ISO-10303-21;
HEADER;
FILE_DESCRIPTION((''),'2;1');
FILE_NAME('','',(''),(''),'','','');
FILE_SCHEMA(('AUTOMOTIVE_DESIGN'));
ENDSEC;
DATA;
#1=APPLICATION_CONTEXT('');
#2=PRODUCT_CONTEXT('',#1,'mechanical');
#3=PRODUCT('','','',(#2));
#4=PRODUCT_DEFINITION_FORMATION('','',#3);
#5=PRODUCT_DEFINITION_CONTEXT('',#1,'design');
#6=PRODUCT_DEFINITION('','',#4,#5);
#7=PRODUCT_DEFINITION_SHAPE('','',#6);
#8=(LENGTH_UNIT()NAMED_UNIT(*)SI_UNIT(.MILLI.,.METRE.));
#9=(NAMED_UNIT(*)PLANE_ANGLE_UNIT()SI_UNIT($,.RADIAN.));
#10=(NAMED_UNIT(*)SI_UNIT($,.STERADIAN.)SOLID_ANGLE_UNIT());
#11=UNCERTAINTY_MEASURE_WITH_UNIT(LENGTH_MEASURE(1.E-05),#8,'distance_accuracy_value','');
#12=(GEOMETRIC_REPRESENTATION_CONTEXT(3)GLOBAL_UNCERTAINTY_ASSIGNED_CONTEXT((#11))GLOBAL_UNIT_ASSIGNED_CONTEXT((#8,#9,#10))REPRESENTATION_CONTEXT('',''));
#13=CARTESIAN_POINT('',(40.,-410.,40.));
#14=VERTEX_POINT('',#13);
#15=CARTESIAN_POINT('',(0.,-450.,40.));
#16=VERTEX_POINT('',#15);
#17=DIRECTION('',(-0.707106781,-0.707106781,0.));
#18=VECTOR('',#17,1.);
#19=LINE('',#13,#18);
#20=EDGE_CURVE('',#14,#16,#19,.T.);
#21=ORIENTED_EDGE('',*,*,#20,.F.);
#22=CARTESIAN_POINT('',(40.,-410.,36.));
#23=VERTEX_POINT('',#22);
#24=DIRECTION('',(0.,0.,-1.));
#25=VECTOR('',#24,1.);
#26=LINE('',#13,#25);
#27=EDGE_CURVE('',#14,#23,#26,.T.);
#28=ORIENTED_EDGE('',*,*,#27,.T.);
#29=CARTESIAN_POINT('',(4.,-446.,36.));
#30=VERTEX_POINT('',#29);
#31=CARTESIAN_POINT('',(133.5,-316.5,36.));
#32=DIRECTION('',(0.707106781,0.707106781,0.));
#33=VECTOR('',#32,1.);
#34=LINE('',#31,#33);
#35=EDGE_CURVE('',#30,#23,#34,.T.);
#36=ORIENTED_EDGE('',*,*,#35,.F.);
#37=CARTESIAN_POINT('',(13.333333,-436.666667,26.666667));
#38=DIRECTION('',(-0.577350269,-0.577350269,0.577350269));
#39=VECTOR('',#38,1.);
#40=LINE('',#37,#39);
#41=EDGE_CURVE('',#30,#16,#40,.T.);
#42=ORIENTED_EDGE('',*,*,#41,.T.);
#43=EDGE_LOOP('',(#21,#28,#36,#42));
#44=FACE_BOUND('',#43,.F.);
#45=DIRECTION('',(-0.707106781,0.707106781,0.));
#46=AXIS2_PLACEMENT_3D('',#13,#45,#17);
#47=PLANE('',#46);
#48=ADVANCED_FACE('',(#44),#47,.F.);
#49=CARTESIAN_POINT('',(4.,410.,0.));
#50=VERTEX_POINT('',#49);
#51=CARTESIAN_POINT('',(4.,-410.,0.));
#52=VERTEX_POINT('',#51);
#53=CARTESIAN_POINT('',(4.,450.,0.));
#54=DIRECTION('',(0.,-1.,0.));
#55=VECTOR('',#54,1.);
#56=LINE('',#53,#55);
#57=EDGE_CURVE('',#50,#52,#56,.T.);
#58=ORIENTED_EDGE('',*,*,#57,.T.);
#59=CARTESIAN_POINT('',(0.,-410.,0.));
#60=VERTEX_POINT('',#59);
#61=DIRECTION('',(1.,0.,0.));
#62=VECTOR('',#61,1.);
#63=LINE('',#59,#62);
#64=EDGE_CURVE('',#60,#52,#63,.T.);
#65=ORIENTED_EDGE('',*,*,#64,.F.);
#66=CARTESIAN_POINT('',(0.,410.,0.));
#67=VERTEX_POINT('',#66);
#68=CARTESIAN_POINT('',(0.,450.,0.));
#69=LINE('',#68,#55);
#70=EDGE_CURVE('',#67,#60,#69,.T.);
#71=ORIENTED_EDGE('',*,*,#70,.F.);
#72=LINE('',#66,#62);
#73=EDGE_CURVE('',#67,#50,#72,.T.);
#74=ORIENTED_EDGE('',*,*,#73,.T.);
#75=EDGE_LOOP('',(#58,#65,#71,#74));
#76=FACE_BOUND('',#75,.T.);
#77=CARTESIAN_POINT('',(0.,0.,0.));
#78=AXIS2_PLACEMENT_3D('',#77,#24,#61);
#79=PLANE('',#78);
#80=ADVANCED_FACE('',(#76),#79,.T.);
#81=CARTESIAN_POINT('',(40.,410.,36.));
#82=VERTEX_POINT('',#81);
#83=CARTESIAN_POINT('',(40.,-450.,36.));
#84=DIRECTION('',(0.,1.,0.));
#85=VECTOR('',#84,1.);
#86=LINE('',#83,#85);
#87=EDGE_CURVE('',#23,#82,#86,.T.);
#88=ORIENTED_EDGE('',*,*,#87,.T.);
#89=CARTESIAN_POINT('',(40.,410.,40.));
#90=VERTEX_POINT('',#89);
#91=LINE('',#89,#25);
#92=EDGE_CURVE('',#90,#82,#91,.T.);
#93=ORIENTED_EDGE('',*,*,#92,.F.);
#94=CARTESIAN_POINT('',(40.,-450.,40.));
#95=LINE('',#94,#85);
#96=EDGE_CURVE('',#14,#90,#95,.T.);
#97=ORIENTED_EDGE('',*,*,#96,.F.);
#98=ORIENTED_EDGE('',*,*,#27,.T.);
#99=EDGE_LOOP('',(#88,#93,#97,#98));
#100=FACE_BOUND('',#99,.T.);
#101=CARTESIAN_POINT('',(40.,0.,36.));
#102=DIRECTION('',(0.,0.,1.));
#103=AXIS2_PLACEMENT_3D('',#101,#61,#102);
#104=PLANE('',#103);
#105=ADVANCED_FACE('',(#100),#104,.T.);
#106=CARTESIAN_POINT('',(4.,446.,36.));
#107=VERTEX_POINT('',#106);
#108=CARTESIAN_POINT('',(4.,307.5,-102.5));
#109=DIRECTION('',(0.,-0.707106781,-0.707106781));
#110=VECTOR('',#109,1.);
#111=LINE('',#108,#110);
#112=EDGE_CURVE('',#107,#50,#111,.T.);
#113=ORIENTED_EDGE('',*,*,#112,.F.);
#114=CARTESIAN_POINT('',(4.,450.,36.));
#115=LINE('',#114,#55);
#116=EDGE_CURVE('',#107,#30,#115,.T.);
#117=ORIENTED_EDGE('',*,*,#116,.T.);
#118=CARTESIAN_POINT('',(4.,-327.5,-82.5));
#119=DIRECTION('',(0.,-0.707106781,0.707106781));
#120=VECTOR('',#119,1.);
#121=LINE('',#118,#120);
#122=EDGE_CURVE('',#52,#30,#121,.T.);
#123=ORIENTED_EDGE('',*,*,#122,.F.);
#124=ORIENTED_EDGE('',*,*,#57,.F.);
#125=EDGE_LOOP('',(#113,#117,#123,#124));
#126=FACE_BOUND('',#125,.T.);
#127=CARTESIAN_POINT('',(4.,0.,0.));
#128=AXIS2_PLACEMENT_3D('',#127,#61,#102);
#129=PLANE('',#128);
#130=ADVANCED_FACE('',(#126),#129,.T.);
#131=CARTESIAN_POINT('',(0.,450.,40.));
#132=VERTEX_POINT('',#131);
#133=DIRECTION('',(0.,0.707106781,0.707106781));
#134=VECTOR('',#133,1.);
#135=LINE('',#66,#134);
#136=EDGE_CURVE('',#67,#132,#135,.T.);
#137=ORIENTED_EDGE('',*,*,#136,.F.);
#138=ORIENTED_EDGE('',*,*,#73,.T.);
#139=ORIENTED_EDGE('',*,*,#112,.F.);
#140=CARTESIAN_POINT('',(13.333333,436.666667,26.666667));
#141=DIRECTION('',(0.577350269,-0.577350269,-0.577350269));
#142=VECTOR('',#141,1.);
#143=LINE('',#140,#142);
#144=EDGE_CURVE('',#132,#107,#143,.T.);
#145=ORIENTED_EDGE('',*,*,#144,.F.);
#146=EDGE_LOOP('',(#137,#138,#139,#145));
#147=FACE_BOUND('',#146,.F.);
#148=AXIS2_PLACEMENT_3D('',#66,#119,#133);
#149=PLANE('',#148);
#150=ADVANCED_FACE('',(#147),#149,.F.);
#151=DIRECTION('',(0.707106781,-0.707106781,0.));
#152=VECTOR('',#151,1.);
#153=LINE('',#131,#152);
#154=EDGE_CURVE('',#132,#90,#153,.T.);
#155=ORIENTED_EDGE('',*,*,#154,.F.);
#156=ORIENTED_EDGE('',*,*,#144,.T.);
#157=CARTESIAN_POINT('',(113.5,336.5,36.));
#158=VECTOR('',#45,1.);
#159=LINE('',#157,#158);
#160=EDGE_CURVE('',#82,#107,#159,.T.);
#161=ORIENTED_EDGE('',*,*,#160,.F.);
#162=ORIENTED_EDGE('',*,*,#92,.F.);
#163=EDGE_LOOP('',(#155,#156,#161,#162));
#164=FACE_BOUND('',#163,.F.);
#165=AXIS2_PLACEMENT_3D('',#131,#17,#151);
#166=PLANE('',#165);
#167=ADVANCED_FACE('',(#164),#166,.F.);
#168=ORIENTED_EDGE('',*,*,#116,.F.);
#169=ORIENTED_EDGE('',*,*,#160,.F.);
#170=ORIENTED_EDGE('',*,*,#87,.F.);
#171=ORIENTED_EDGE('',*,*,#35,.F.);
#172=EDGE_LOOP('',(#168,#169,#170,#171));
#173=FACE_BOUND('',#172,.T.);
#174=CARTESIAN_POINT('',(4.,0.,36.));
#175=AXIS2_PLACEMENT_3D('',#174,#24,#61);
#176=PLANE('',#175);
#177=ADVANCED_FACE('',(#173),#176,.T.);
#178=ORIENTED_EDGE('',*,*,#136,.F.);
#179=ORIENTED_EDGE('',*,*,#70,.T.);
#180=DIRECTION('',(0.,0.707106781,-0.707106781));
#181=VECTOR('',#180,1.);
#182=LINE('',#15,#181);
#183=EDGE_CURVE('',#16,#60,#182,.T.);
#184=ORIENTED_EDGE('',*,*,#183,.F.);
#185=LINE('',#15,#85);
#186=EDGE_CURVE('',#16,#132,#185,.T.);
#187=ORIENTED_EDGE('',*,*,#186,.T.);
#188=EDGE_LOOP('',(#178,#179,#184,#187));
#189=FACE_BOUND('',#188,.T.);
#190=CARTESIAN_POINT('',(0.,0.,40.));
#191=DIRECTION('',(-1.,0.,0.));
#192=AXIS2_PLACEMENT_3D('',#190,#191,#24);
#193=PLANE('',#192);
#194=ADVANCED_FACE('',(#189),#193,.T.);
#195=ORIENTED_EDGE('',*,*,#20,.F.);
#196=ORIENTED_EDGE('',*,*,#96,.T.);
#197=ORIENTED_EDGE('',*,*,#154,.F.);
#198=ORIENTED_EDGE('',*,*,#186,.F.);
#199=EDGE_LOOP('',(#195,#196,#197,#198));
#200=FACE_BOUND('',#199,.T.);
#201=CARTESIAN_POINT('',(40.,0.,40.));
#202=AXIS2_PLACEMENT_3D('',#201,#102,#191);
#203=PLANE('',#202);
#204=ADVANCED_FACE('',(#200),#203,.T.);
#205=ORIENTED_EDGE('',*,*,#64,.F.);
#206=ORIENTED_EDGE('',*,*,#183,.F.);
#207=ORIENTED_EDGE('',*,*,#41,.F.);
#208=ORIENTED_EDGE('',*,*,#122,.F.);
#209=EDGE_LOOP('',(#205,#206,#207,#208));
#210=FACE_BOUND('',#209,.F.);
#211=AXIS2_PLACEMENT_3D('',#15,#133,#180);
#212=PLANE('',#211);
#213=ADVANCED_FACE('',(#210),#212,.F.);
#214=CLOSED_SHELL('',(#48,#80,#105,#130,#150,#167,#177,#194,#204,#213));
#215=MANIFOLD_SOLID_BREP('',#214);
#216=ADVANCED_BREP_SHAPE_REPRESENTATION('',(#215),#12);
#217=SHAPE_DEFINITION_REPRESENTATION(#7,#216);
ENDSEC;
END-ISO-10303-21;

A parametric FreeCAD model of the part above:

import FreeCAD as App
import Part
import Sketcher

V = App.Vector

doc = App.newDocument("Part")
body = doc.addObject("PartDesign::Body", "Body")

# Sketch on XZ plane
sketch1 = doc.addObject("Sketcher::SketchObject", "Sketch")
body.addObject(sketch1)
sketch1.AttachmentSupport = (doc.XZ_Plane, [""])
sketch1.MapMode = "FlatFace"
sketch1.addGeometry(Part.LineSegment(V(0, 40, 0), V(0, 0, 0)), False)
sketch1.addGeometry(Part.LineSegment(V(0, 0, 0), V(4, 0, 0)), False)
sketch1.addGeometry(Part.LineSegment(V(4, 0, 0), V(4, 36, 0)), False)
sketch1.addGeometry(Part.LineSegment(V(4, 36, 0), V(40, 36, 0)), False)
sketch1.addGeometry(Part.LineSegment(V(40, 36, 0), V(40, 40, 0)), False)
sketch1.addGeometry(Part.LineSegment(V(40, 40, 0), V(0, 40, 0)), False)
sketch1.addConstraint(Sketcher.Constraint("Coincident", 0, 2, 1, 1))
sketch1.addConstraint(Sketcher.Constraint("Coincident", 1, 2, 2, 1))
sketch1.addConstraint(Sketcher.Constraint("Coincident", 2, 2, 3, 1))
sketch1.addConstraint(Sketcher.Constraint("Coincident", 3, 2, 4, 1))
sketch1.addConstraint(Sketcher.Constraint("Coincident", 4, 2, 5, 1))
sketch1.addConstraint(Sketcher.Constraint("Coincident", 5, 2, 0, 1))
sketch1.addConstraint(Sketcher.Constraint("Vertical", 0))
sketch1.addConstraint(Sketcher.Constraint("Horizontal", 1))
sketch1.addConstraint(Sketcher.Constraint("Vertical", 2))
sketch1.addConstraint(Sketcher.Constraint("Horizontal", 3))
sketch1.addConstraint(Sketcher.Constraint("Vertical", 4))
sketch1.addConstraint(Sketcher.Constraint("Horizontal", 5))
sketch1.addConstraint(Sketcher.Constraint("Coincident", 0, 2, -1, 1))
sketch1.addConstraint(Sketcher.Constraint("Equal", 5, 0))
sketch1.addConstraint(Sketcher.Constraint("Equal", 3, 2))
sketch1.addConstraint(Sketcher.Constraint("DistanceX", 1, 1, 1, 2, 4.0))
sketch1.addConstraint(Sketcher.Constraint("DistanceX", 3, 1, 3, 2, 36.0))
pad1 = doc.addObject("PartDesign::Pad", "Pad")
body.addObject(pad1)
pad1.Profile = sketch1
pad1.Length = 900
pad1.Midplane = True

# Sketch on YZ plane
sketch2 = doc.addObject("Sketcher::SketchObject", "Sketch001")
body.addObject(sketch2)
sketch2.AttachmentSupport = (doc.YZ_Plane, [""])
sketch2.MapMode = "FlatFace"
sketch2.addGeometry(Part.LineSegment(V(410, 0, 0), V(450, 40, 0)), False)
sketch2.addGeometry(Part.LineSegment(V(450, 40, 0), V(450, 0, 0)), False)
sketch2.addGeometry(Part.LineSegment(V(450, 0, 0), V(410, 0, 0)), False)
sketch2.addGeometry(Part.LineSegment(V(-450, 0, 0), V(-450, 40, 0)), False)
sketch2.addGeometry(Part.LineSegment(V(-450, 40, 0), V(-410, 0, 0)), False)
sketch2.addGeometry(Part.LineSegment(V(-410, 0, 0), V(-450, 0, 0)), False)
sketch2.addConstraint(Sketcher.Constraint("Coincident", 0, 2, 1, 1))
sketch2.addConstraint(Sketcher.Constraint("Coincident", 1, 2, 2, 1))
sketch2.addConstraint(Sketcher.Constraint("Coincident", 2, 2, 0, 1))
sketch2.addConstraint(Sketcher.Constraint("Coincident", 3, 2, 4, 1))
sketch2.addConstraint(Sketcher.Constraint("Coincident", 4, 2, 5, 1))
sketch2.addConstraint(Sketcher.Constraint("Coincident", 5, 2, 3, 1))
sketch2.addConstraint(Sketcher.Constraint("Vertical", 1))
sketch2.addConstraint(Sketcher.Constraint("Horizontal", 2))
sketch2.addConstraint(Sketcher.Constraint("Vertical", 3))
sketch2.addConstraint(Sketcher.Constraint("Horizontal", 5))
sketch2.addConstraint(Sketcher.Constraint("Symmetric", 2, 2, 4, 2, -1, 1))
sketch2.addConstraint(Sketcher.Constraint("Symmetric", 0, 2, 3, 2, -2))
sketch2.addConstraint(Sketcher.Constraint("PointOnObject", 1, 2, -1))
sketch2.addConstraint(Sketcher.Constraint("Perpendicular", 0, 4))
sketch2.addConstraint(Sketcher.Constraint("DistanceX", 2, 2, 2, 1, 40.0))
sketch2.addConstraint(Sketcher.Constraint("DistanceX", -1, 1, 0, 2, 450.0))
pocket1 = doc.addObject("PartDesign::Pocket", "Pocket")
body.addObject(pocket1)
pocket1.Profile = sketch2
pocket1.Length = 40
pocket1.Reversed = True

# Sketch on XY plane
sketch3 = doc.addObject("Sketcher::SketchObject", "Sketch002")
body.addObject(sketch3)
sketch3.AttachmentSupport = (doc.XY_Plane, [""])
sketch3.MapMode = "FlatFace"
sketch3.AttachmentOffset = App.Placement(V(0, 0, 40), App.Rotation())
sketch3.addGeometry(Part.LineSegment(V(40, 450, 0), V(0, 450, 0)), False)
sketch3.addGeometry(Part.LineSegment(V(0, 450, 0), V(40, 410, 0)), False)
sketch3.addGeometry(Part.LineSegment(V(40, 410, 0), V(40, 450, 0)), False)
sketch3.addGeometry(Part.LineSegment(V(40, -410, 0), V(0, -450, 0)), False)
sketch3.addGeometry(Part.LineSegment(V(0, -450, 0), V(40, -450, 0)), False)
sketch3.addGeometry(Part.LineSegment(V(40, -450, 0), V(40, -410, 0)), False)
sketch3.addConstraint(Sketcher.Constraint("Coincident", 0, 2, 1, 1))
sketch3.addConstraint(Sketcher.Constraint("Coincident", 1, 2, 2, 1))
sketch3.addConstraint(Sketcher.Constraint("Coincident", 2, 2, 0, 1))
sketch3.addConstraint(Sketcher.Constraint("Coincident", 3, 2, 4, 1))
sketch3.addConstraint(Sketcher.Constraint("Coincident", 4, 2, 5, 1))
sketch3.addConstraint(Sketcher.Constraint("Coincident", 5, 2, 3, 1))
sketch3.addConstraint(Sketcher.Constraint("Horizontal", 0))
sketch3.addConstraint(Sketcher.Constraint("Vertical", 2))
sketch3.addConstraint(Sketcher.Constraint("Horizontal", 4))
sketch3.addConstraint(Sketcher.Constraint("Vertical", 5))
sketch3.addConstraint(Sketcher.Constraint("Symmetric", 0, 2, 3, 2, -1, 1))
sketch3.addConstraint(Sketcher.Constraint("Symmetric", 1, 2, 5, 2, -1))
sketch3.addConstraint(Sketcher.Constraint("PointOnObject", 0, 2, -2))
sketch3.addConstraint(Sketcher.Constraint("Perpendicular", 1, 3))
sketch3.addConstraint(Sketcher.Constraint("DistanceX", 0, 2, 0, 1, 40.0))
sketch3.addConstraint(Sketcher.Constraint("DistanceY", -1, 1, 0, 2, 450.0))
pocket2 = doc.addObject("PartDesign::Pocket", "Pocket001")
body.addObject(pocket2)
pocket2.Profile = sketch3
pocket2.Length = 40

doc.recompute()
